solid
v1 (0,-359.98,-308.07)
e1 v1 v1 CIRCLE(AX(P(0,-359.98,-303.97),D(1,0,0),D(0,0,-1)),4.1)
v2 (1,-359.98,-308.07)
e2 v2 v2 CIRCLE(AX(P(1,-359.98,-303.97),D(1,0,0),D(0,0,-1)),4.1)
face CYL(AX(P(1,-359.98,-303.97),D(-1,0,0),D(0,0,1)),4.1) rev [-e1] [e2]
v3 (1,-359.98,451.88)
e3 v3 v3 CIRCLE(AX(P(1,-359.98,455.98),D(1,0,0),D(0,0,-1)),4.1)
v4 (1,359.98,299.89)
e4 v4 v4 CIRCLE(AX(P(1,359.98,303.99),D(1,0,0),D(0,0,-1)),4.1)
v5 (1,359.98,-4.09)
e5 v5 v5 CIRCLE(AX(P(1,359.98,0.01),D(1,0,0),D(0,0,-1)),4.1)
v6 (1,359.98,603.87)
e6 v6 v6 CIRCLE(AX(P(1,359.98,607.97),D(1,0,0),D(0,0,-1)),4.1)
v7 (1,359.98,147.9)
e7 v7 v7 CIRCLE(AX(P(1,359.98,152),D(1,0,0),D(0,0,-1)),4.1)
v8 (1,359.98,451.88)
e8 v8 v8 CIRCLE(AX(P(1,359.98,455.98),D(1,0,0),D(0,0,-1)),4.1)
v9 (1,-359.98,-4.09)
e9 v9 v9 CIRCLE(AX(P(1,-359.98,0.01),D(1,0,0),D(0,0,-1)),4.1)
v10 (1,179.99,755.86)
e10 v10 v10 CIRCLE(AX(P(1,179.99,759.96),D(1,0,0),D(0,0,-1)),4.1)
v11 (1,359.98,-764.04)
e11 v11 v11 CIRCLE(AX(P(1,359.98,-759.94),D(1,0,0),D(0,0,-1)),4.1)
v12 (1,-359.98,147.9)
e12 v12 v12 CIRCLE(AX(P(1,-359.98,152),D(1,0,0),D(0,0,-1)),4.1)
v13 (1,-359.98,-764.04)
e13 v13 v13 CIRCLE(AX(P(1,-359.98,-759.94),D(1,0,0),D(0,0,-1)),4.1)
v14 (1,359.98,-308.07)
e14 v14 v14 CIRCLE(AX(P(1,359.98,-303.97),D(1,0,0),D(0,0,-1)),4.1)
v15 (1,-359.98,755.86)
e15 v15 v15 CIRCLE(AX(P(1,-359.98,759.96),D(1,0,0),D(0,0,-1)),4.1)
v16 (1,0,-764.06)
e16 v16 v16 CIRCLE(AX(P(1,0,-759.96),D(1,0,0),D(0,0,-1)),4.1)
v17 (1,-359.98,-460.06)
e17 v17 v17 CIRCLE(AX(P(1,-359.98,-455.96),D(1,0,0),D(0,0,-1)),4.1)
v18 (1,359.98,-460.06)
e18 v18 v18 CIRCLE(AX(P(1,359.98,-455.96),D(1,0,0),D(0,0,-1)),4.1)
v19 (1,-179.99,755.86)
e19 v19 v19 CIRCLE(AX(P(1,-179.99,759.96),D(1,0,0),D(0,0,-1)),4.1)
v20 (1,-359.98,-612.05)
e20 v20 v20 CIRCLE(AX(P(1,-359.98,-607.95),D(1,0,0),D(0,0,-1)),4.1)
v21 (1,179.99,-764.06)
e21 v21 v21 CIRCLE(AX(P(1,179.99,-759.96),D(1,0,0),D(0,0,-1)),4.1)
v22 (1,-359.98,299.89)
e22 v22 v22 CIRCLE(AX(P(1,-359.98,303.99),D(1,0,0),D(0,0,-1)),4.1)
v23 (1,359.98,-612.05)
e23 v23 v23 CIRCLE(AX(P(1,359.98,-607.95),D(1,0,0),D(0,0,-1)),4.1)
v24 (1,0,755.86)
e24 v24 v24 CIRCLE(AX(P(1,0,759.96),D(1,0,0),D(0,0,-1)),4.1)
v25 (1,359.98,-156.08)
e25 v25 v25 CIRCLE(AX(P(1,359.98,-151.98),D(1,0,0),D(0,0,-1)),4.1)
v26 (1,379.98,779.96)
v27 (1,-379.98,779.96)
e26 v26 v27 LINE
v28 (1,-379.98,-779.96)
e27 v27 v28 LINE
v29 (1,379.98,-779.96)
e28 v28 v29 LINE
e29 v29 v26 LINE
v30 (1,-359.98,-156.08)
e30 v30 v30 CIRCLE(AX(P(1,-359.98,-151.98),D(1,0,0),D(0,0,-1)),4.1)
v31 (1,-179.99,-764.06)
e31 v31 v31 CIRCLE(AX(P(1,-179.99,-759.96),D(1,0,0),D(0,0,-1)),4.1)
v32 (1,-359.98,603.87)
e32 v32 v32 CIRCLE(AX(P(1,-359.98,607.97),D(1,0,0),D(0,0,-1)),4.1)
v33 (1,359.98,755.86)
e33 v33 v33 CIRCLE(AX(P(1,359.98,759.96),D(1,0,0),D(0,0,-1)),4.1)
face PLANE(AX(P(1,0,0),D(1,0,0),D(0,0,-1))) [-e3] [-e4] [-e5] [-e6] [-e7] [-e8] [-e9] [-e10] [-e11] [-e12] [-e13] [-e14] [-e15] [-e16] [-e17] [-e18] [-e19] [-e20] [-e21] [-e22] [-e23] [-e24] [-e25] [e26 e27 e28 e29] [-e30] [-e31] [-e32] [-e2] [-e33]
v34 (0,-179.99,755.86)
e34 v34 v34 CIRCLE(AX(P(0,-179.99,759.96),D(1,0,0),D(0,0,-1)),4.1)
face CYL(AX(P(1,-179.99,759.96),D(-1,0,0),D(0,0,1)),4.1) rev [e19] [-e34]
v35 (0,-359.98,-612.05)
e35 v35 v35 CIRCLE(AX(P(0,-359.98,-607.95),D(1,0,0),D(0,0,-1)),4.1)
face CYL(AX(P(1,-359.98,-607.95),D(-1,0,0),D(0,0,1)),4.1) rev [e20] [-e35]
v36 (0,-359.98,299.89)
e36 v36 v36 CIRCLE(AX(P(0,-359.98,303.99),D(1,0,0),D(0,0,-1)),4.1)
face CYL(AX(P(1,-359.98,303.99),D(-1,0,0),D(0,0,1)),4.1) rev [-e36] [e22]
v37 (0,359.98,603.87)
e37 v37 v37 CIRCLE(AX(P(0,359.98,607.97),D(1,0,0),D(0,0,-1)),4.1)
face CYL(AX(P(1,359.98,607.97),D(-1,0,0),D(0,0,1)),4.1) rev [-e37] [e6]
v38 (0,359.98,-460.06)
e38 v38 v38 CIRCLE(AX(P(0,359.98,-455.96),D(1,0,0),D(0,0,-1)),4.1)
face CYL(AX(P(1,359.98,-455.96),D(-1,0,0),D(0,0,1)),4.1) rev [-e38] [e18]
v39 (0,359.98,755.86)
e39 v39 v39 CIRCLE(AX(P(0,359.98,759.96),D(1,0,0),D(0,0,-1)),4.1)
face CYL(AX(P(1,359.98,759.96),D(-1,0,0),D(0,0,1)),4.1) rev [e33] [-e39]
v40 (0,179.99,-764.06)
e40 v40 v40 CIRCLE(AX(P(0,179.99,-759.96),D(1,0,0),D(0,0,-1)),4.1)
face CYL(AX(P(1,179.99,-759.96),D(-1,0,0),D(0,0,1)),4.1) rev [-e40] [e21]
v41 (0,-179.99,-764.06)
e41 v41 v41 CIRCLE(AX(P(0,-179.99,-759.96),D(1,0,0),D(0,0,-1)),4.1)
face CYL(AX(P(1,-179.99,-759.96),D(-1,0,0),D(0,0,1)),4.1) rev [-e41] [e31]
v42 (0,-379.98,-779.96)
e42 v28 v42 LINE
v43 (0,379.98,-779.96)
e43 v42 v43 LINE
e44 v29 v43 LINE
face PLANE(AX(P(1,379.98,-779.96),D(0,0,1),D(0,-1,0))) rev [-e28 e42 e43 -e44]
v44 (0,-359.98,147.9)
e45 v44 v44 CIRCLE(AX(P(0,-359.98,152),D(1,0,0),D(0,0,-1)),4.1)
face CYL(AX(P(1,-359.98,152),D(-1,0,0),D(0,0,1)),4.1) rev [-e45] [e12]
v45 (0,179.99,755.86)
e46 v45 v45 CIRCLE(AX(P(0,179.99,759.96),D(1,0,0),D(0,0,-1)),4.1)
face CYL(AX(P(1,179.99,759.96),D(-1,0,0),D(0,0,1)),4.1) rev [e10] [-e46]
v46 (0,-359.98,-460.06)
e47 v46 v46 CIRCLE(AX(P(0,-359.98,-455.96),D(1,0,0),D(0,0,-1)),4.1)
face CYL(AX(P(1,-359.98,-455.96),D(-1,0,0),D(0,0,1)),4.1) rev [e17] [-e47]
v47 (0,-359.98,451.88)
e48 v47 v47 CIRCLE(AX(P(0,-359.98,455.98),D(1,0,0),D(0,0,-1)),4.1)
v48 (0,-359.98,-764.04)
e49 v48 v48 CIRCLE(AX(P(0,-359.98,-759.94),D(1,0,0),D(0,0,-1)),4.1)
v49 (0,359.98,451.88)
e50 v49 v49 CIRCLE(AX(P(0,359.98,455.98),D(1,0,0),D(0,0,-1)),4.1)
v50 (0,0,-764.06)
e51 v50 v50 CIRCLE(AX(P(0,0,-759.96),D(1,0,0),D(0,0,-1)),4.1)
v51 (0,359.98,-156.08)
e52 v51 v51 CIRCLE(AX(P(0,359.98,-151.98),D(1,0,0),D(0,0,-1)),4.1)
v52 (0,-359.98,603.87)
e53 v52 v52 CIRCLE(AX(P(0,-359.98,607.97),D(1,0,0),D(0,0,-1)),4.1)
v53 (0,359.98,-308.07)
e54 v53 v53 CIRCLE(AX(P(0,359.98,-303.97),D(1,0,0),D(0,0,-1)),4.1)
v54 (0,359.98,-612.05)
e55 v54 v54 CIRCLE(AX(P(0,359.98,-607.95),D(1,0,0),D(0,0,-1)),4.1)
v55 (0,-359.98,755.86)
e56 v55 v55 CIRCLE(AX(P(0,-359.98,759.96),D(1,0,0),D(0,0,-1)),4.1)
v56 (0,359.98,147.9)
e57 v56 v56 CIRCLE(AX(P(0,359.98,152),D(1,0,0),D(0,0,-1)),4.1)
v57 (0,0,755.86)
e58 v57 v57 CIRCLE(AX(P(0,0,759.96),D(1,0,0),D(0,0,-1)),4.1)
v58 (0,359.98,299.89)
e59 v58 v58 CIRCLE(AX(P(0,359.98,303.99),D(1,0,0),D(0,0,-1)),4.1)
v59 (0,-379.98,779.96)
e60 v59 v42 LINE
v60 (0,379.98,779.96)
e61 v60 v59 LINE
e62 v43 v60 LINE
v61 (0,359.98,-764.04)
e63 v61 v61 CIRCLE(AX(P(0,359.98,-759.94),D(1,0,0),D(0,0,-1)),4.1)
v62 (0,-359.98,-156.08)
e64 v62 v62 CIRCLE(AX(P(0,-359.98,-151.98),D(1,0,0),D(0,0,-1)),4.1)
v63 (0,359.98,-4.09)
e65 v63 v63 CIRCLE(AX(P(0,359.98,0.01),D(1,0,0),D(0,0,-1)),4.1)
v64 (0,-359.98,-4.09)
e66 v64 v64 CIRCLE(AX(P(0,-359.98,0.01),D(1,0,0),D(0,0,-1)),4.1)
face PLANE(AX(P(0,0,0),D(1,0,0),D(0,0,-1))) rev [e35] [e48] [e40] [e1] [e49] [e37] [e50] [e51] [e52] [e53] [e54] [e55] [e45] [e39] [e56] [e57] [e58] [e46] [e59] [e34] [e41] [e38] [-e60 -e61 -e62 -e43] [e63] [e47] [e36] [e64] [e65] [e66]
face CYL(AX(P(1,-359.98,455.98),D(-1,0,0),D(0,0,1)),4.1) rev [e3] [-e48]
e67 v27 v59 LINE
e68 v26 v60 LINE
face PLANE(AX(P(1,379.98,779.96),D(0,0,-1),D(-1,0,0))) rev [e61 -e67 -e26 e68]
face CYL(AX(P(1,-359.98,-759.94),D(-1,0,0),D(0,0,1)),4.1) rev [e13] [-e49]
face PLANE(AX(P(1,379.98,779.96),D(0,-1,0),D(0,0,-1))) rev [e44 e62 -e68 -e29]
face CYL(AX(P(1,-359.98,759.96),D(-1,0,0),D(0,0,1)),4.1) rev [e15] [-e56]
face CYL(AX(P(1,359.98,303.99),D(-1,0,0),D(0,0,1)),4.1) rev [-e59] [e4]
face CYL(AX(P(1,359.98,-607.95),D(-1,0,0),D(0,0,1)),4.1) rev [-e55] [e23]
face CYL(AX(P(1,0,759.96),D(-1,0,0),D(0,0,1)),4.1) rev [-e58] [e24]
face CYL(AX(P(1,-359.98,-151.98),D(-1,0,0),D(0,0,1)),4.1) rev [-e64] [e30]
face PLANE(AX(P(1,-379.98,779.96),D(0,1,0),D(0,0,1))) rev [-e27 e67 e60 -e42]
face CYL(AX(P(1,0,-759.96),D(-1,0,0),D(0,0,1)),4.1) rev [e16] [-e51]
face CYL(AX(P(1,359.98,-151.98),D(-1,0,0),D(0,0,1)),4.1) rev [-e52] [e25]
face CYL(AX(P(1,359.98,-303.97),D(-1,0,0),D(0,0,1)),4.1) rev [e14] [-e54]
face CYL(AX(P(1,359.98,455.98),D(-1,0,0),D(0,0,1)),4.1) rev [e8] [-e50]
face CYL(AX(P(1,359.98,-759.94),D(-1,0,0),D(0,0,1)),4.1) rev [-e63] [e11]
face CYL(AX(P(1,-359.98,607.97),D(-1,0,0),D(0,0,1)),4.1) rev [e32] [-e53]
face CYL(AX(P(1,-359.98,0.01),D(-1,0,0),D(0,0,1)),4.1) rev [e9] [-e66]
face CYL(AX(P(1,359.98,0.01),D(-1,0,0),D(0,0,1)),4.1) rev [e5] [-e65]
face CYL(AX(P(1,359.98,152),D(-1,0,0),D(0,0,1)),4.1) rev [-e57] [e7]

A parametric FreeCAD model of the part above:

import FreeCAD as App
import Part
import Sketcher
from FreeCAD import Vector
Q = App.Units.Quantity


def add_polygon(sketch, points):
    """Adds a closed chain of lines whose ends are joined by coincident constraints."""
    first, n = sketch.GeometryCount, len(points)
    for a, b in zip(points, points[1:] + points[:1]):
        sketch.addGeometry(Part.LineSegment(App.Vector(*a, 0), App.Vector(*b, 0)), False)
    for i in range(n):
        sketch.addConstraint(Sketcher.Constraint("Coincident", first + i, 2, first + (i + 1) % n, 1))

doc = App.newDocument("Part")
params = doc.addObject("Spreadsheet::Sheet", "Params")
for row, (alias, value) in enumerate([
    ("sketch1_diameter", "8.2 mm"),
    ("sketch1_width", "759.96 mm"),
    ("sketch1_height", "1559.92 mm"),
    ("pad1_length", "1 mm"),
], start=1):
    params.set(f"A{row}", alias)
    params.set(f"B{row}", "=" + value)
    params.setAlias(f"B{row}", alias)

body = doc.addObject("PartDesign::Body", "Body")

# Sketch on YZ plane
sketch1 = doc.addObject("Sketcher::SketchObject", "Sketch")
body.addObject(sketch1)
sketch1.AttachmentSupport = (doc.YZ_Plane, [""])
sketch1.MapMode = "FlatFace"
add_polygon(sketch1, [(380, 780), (-380, 780), (-380, -780), (380, -780)])  # lines 0-3
sketch1.addGeometry(Part.Circle(Vector(-360, 760, 0), Vector(0, 0, 1), 4.1), False)  # 4
sketch1.addGeometry(Part.Circle(Vector(-360, 608, 0), Vector(0, 0, 1), 4.1), False)  # 5
sketch1.addGeometry(Part.Circle(Vector(-360, 456, 0), Vector(0, 0, 1), 4.1), False)  # 6
sketch1.addGeometry(Part.Circle(Vector(-360, 304, 0), Vector(0, 0, 1), 4.1), False)  # 7
sketch1.addGeometry(Part.Circle(Vector(-360, 152, 0), Vector(0, 0, 1), 4.1), False)  # 8
sketch1.addGeometry(Part.Circle(Vector(-360, 0, 0), Vector(0, 0, 1), 4.1), False)  # 9
sketch1.addGeometry(Part.Circle(Vector(-180, 760, 0), Vector(0, 0, 1), 4.1), False)  # 10
sketch1.addGeometry(Part.Circle(Vector(-360, -152, 0), Vector(0, 0, 1), 4.1), False)  # 11
sketch1.addGeometry(Part.Circle(Vector(-360, -304, 0), Vector(0, 0, 1), 4.1), False)  # 12
sketch1.addGeometry(Part.Circle(Vector(-360, -456, 0), Vector(0, 0, 1), 4.1), False)  # 13
sketch1.addGeometry(Part.Circle(Vector(-360, -608, 0), Vector(0, 0, 1), 4.1), False)  # 14
sketch1.addGeometry(Part.Circle(Vector(-360, -759.9, 0), Vector(0, 0, 1), 4.1), False)  # 15
sketch1.addGeometry(Part.Circle(Vector(-180, -760, 0), Vector(0, 0, 1), 4.1), False)  # 16
sketch1.addGeometry(Part.Circle(Vector(0, 760, 0), Vector(0, 0, 1), 4.1), False)  # 17
sketch1.addGeometry(Part.Circle(Vector(180, 760, 0), Vector(0, 0, 1), 4.1), False)  # 18
sketch1.addGeometry(Part.Circle(Vector(360, 760, 0), Vector(0, 0, 1), 4.1), False)  # 19
sketch1.addGeometry(Part.Circle(Vector(360, 608, 0), Vector(0, 0, 1), 4.1), False)  # 20
sketch1.addGeometry(Part.Circle(Vector(360, 456, 0), Vector(0, 0, 1), 4.1), False)  # 21
sketch1.addGeometry(Part.Circle(Vector(360, 304, 0), Vector(0, 0, 1), 4.1), False)  # 22
sketch1.addGeometry(Part.Circle(Vector(360, 152, 0), Vector(0, 0, 1), 4.1), False)  # 23
sketch1.addGeometry(Part.Circle(Vector(360, 0, 0), Vector(0, 0, 1), 4.1), False)  # 24
sketch1.addGeometry(Part.Circle(Vector(0, -760, 0), Vector(0, 0, 1), 4.1), False)  # 25
sketch1.addGeometry(Part.Circle(Vector(180, -760, 0), Vector(0, 0, 1), 4.1), False)  # 26
sketch1.addGeometry(Part.Circle(Vector(360, -152, 0), Vector(0, 0, 1), 4.1), False)  # 27
sketch1.addGeometry(Part.Circle(Vector(360, -304, 0), Vector(0, 0, 1), 4.1), False)  # 28
sketch1.addGeometry(Part.Circle(Vector(360, -456, 0), Vector(0, 0, 1), 4.1), False)  # 29
sketch1.addGeometry(Part.Circle(Vector(360, -608, 0), Vector(0, 0, 1), 4.1), False)  # 30
sketch1.addGeometry(Part.Circle(Vector(360, -759.9, 0), Vector(0, 0, 1), 4.1), False)  # 31
sketch1.addConstraint(Sketcher.Constraint("Horizontal", 0))
sketch1.addConstraint(Sketcher.Constraint("Vertical", 1))
sketch1.addConstraint(Sketcher.Constraint("Horizontal", 2))
sketch1.addConstraint(Sketcher.Constraint("Vertical", 3))
sketch1.addConstraint(Sketcher.Constraint("Equal", 4, 5))
sketch1.addConstraint(Sketcher.Constraint("Equal", 5, 6))
sketch1.addConstraint(Sketcher.Constraint("Equal", 6, 7))
sketch1.addConstraint(Sketcher.Constraint("Equal", 7, 8))
sketch1.addConstraint(Sketcher.Constraint("Equal", 8, 9))
sketch1.addConstraint(Sketcher.Constraint("Equal", 9, 10))
sketch1.addConstraint(Sketcher.Constraint("Equal", 10, 11))
sketch1.addConstraint(Sketcher.Constraint("Equal", 11, 12))
sketch1.addConstraint(Sketcher.Constraint("Equal", 12, 13))
sketch1.addConstraint(Sketcher.Constraint("Equal", 13, 14))
sketch1.addConstraint(Sketcher.Constraint("Equal", 14, 15))
sketch1.addConstraint(Sketcher.Constraint("Equal", 15, 16))
sketch1.addConstraint(Sketcher.Constraint("Equal", 16, 17))
sketch1.addConstraint(Sketcher.Constraint("Equal", 17, 18))
sketch1.addConstraint(Sketcher.Constraint("Equal", 18, 19))
sketch1.addConstraint(Sketcher.Constraint("Equal", 19, 20))
sketch1.addConstraint(Sketcher.Constraint("Equal", 20, 21))
sketch1.addConstraint(Sketcher.Constraint("Equal", 21, 22))
sketch1.addConstraint(Sketcher.Constraint("Equal", 22, 23))
sketch1.addConstraint(Sketcher.Constraint("Equal", 23, 24))
sketch1.addConstraint(Sketcher.Constraint("Equal", 24, 25))
sketch1.addConstraint(Sketcher.Constraint("Equal", 25, 26))
sketch1.addConstraint(Sketcher.Constraint("Equal", 26, 27))
sketch1.addConstraint(Sketcher.Constraint("Equal", 27, 28))
sketch1.addConstraint(Sketcher.Constraint("Equal", 28, 29))
sketch1.addConstraint(Sketcher.Constraint("Equal", 29, 30))
sketch1.addConstraint(Sketcher.Constraint("Equal", 30, 31))
sketch1.addConstraint(Sketcher.Constraint("Symmetric", 16, 3, 18, 3, -1, 1))
sketch1.addConstraint(Sketcher.Constraint("Symmetric", 17, 3, 25, 3, -1, 1))
sketch1.addConstraint(Sketcher.Constraint("Symmetric", 10, 3, 26, 3, -1, 1))
sketch1.addConstraint(Sketcher.Constraint("Symmetric", 0, 2, 2, 2, -1, 1))
sketch1.addConstraint(Sketcher.Constraint("Symmetric", 10, 3, 18, 3, -2))
sketch1.addConstraint(Sketcher.Constraint("Symmetric", 4, 3, 19, 3, -2))
sketch1.addConstraint(Sketcher.Constraint("Symmetric", 5, 3, 20, 3, -2))
sketch1.addConstraint(Sketcher.Constraint("Symmetric", 6, 3, 21, 3, -2))
sketch1.addConstraint(Sketcher.Constraint("Symmetric", 7, 3, 22, 3, -2))
sketch1.addConstraint(Sketcher.Constraint("Symmetric", 8, 3, 23, 3, -2))
sketch1.addConstraint(Sketcher.Constraint("Symmetric", 9, 3, 24, 3, -2))
sketch1.addConstraint(Sketcher.Constraint("Symmetric", 11, 3, 27, 3, -2))
sketch1.addConstraint(Sketcher.Constraint("Symmetric", 12, 3, 28, 3, -2))
sketch1.addConstraint(Sketcher.Constraint("Symmetric", 13, 3, 29, 3, -2))
sketch1.addConstraint(Sketcher.Constraint("Symmetric", 14, 3, 30, 3, -2))
sketch1.addConstraint(Sketcher.Constraint("Symmetric", 15, 3, 31, 3, -2))
sketch1.addConstraint(Sketcher.Constraint("PointOnObject", 17, 3, -2))
sketch1.addConstraint(Sketcher.Constraint("Horizontal", 4, 3, 10, 3))
sketch1.addConstraint(Sketcher.Constraint("Horizontal", 10, 3, 17, 3))
sketch1.addConstraint(Sketcher.Constraint("Vertical", 4, 3, 5, 3))
sketch1.addConstraint(Sketcher.Constraint("Vertical", 5, 3, 6, 3))
sketch1.addConstraint(Sketcher.Constraint("Vertical", 6, 3, 7, 3))
sketch1.addConstraint(Sketcher.Constraint("Vertical", 7, 3, 8, 3))
sketch1.addConstraint(Sketcher.Constraint("Vertical", 8, 3, 9, 3))
sketch1.addConstraint(Sketcher.Constraint("Vertical", 9, 3, 11, 3))
sketch1.addConstraint(Sketcher.Constraint("Vertical", 11, 3, 12, 3))
sketch1.addConstraint(Sketcher.Constraint("Vertical", 12, 3, 13, 3))
sketch1.addConstraint(Sketcher.Constraint("Vertical", 13, 3, 14, 3))
sketch1.addConstraint(Sketcher.Constraint("Vertical", 14, 3, 15, 3))
sketch1.addConstraint(Sketcher.Constraint("Diameter", 4, Q("8.2 mm")))
sketch1.addConstraint(Sketcher.Constraint("DistanceY", -1, 1, 8, 3, Q("152 mm")))
sketch1.addConstraint(Sketcher.Constraint("DistanceY", 16, 3, 13, 3, Q("304 mm")))
sketch1.addConstraint(Sketcher.Constraint("DistanceX", 0, 2, 4, 3, Q("20 mm")))
sketch1.addConstraint(Sketcher.Constraint("DistanceY", 4, 3, 0, 2, Q("20 mm")))
sketch1.addConstraint(Sketcher.Constraint("DistanceX", 0, 2, 0, 1, Q("759.96 mm")))
sketch1.addConstraint(Sketcher.Constraint("DistanceY", 1, 2, 1, 1, Q("1559.92 mm")))
sketch1.addConstraint(Sketcher.Constraint("DistanceY", -1, 1, 5, 3, Q("607.97 mm")))
sketch1.addConstraint(Sketcher.Constraint("DistanceY", -1, 1, 6, 3, Q("455.98 mm")))
sketch1.addConstraint(Sketcher.Constraint("DistanceY", -1, 1, 7, 3, Q("303.99 mm")))
sketch1.addConstraint(Sketcher.Constraint("DistanceY", -1, 1, 9, 3, Q("0.01 mm")))
sketch1.addConstraint(Sketcher.Constraint("DistanceX", 10, 3, -1, 1, Q("179.99 mm")))
sketch1.addConstraint(Sketcher.Constraint("DistanceY", 11, 3, -1, 1, Q("151.98 mm")))
sketch1.addConstraint(Sketcher.Constraint("DistanceY", 12, 3, -1, 1, Q("303.97 mm")))
sketch1.addConstraint(Sketcher.Constraint("DistanceY", 14, 3, -1, 1, Q("607.95 mm")))
sketch1.addConstraint(Sketcher.Constraint("DistanceY", 15, 3, -1, 1, Q("759.94 mm")))
sketch1.setExpression("Constraints[64]", "Params.sketch1_diameter")
sketch1.setExpression("Constraints[69]", "Params.sketch1_width")
sketch1.setExpression("Constraints[70]", "Params.sketch1_height")
pad1 = doc.addObject("PartDesign::Pad", "Pad")
body.addObject(pad1)
pad1.Profile = sketch1
pad1.setExpression("Length", "Params.pad1_length")

doc.recompute()
